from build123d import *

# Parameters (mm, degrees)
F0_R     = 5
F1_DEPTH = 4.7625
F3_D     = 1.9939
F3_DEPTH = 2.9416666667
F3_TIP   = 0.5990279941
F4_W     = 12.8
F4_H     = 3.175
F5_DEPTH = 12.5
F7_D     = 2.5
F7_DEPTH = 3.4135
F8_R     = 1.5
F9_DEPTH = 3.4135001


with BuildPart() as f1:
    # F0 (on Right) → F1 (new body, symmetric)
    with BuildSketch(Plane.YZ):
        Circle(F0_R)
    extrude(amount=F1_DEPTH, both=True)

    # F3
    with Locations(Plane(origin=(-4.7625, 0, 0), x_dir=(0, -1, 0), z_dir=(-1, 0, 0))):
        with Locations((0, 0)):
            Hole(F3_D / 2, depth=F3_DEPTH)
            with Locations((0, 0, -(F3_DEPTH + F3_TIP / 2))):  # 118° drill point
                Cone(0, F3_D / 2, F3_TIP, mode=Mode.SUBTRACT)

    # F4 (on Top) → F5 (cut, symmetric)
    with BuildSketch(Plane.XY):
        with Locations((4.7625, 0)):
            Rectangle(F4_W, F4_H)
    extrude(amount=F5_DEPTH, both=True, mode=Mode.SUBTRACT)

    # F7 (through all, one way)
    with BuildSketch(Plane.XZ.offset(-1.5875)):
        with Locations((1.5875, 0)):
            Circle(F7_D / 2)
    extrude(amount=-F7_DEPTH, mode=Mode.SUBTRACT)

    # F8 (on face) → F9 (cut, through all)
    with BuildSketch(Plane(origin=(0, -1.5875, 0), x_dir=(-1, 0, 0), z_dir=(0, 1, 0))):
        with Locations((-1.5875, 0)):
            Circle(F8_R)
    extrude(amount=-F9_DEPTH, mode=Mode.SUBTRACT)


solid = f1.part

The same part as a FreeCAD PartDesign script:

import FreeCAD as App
import Part
import Sketcher
Q = App.Units.Quantity


def add_polygon(sketch, points):
    """Adds a closed chain of lines whose ends are joined by coincident constraints."""
    first, n = sketch.GeometryCount, len(points)
    for a, b in zip(points, points[1:] + points[:1]):
        sketch.addGeometry(Part.LineSegment(App.Vector(*a, 0), App.Vector(*b, 0)), False)
    for i in range(n):
        sketch.addConstraint(Sketcher.Constraint("Coincident", first + i, 2, first + (i + 1) % n, 1))

doc = App.newDocument("Part")
body = doc.addObject("PartDesign::Body", "Body")

sketch1 = body.newObject("Sketcher::SketchObject", "Sketch")
sketch1.AttachmentSupport = (doc.getObject("YZ_Plane"), [""])
sketch1.MapMode = "FlatFace"
sketch1.addGeometry(Part.Circle(App.Vector(0, 0, 0), App.Vector(0, 0, 1), 5), False)
sketch1.addConstraint(Sketcher.Constraint("Coincident", 0, 3, -1, 1))
sketch1.addConstraint(Sketcher.Constraint("Diameter", 0, Q("10 mm")))
pad1 = body.newObject("PartDesign::Pad", "Pad")
pad1.Profile = sketch1
pad1.Length = 9.525
pad1.Midplane = True

sketch2 = body.newObject("Sketcher::SketchObject", "Sketch001")
sketch2.AttachmentSupport = (doc.getObject("YZ_Plane"), [""])
sketch2.MapMode = "FlatFace"
sketch2.AttachmentOffset = App.Placement(App.Vector(0, 0, -4.7625), App.Rotation())
sketch2.addGeometry(Part.Circle(App.Vector(0, 0, 0), App.Vector(0, 0, 1), 1), False)
sketch2.addConstraint(Sketcher.Constraint("Coincident", 0, 3, -1, 1))
sketch2.addConstraint(Sketcher.Constraint("Diameter", 0, Q("1.9939 mm")))
doc.recompute()
hole = body.newObject("PartDesign::Hole", "Hole")
hole.Profile = sketch2
hole.ThreadType = "None"
hole.Diameter = 1.9939
hole.DepthType = "Dimension"
hole.Depth = 2.941667
hole.DrillPoint = "Angled"
hole.DrillPointAngle = 118
hole.Reversed = True

sketch3 = body.newObject("Sketcher::SketchObject", "Sketch002")
sketch3.AttachmentSupport = (doc.getObject("XY_Plane"), [""])
sketch3.MapMode = "FlatFace"
add_polygon(sketch3, [(-1.6, 1.6), (-1.6, -1.6), (11.2, -1.6), (11.2, 1.6)])
sketch3.addConstraint(Sketcher.Constraint("Vertical", 0))
sketch3.addConstraint(Sketcher.Constraint("Horizontal", 1))
sketch3.addConstraint(Sketcher.Constraint("Vertical", 2))
sketch3.addConstraint(Sketcher.Constraint("Horizontal", 3))
sketch3.addConstraint(Sketcher.Constraint("DistanceX", 1, 1, 1, 2, Q("12.8 mm")))
sketch3.addConstraint(Sketcher.Constraint("DistanceY", 0, 2, 0, 1, Q("3.175 mm")))
sketch3.addConstraint(Sketcher.Constraint("DistanceX", 0, 2, -1, 1, Q("1.6375 mm")))
sketch3.addConstraint(Sketcher.Constraint("DistanceY", 0, 2, -1, 1, Q("1.5875 mm")))
pocket1 = body.newObject("PartDesign::Pocket", "Pocket")
pocket1.Profile = sketch3
pocket1.Length = 25
pocket1.Midplane = True

sketch4 = body.newObject("Sketcher::SketchObject", "Sketch003")
sketch4.AttachmentSupport = (doc.getObject("XZ_Plane"), [""])
sketch4.MapMode = "FlatFace"
sketch4.AttachmentOffset = App.Placement(App.Vector(0, 0, -1.5875), App.Rotation())
sketch4.addGeometry(Part.Circle(App.Vector(1.6, 0, 0), App.Vector(0, 0, 1), 1.2), False)
sketch4.addConstraint(Sketcher.Constraint("PointOnObject", 0, 3, -1))
sketch4.addConstraint(Sketcher.Constraint("Diameter", 0, Q("2.5 mm")))
sketch4.addConstraint(Sketcher.Constraint("DistanceX", -1, 1, 0, 3, Q("1.5875 mm")))
pocket2 = body.newObject("PartDesign::Pocket", "Pocket001")
pocket2.Profile = sketch4
pocket2.Type = "ThroughAll"

sketch5 = body.newObject("Sketcher::SketchObject", "Sketch004")
sketch5.AttachmentSupport = (doc.getObject("XZ_Plane"), [""])
sketch5.MapMode = "FlatFace"
sketch5.AttachmentOffset = App.Placement(App.Vector(0, 0, 1.5875), App.Rotation())
sketch5.addGeometry(Part.Circle(App.Vector(1.6, 0, 0), App.Vector(0, 0, 1), 1.5), False)
sketch5.addConstraint(Sketcher.Constraint("PointOnObject", 0, 3, -1))
sketch5.addConstraint(Sketcher.Constraint("Diameter", 0, Q("3 mm")))
sketch5.addConstraint(Sketcher.Constraint("DistanceX", -1, 1, 0, 3, Q("1.5875 mm")))
pocket3 = body.newObject("PartDesign::Pocket", "Pocket002")
pocket3.Profile = sketch5
pocket3.Type = "ThroughAll"
pocket3.Reversed = True

doc.recompute()
